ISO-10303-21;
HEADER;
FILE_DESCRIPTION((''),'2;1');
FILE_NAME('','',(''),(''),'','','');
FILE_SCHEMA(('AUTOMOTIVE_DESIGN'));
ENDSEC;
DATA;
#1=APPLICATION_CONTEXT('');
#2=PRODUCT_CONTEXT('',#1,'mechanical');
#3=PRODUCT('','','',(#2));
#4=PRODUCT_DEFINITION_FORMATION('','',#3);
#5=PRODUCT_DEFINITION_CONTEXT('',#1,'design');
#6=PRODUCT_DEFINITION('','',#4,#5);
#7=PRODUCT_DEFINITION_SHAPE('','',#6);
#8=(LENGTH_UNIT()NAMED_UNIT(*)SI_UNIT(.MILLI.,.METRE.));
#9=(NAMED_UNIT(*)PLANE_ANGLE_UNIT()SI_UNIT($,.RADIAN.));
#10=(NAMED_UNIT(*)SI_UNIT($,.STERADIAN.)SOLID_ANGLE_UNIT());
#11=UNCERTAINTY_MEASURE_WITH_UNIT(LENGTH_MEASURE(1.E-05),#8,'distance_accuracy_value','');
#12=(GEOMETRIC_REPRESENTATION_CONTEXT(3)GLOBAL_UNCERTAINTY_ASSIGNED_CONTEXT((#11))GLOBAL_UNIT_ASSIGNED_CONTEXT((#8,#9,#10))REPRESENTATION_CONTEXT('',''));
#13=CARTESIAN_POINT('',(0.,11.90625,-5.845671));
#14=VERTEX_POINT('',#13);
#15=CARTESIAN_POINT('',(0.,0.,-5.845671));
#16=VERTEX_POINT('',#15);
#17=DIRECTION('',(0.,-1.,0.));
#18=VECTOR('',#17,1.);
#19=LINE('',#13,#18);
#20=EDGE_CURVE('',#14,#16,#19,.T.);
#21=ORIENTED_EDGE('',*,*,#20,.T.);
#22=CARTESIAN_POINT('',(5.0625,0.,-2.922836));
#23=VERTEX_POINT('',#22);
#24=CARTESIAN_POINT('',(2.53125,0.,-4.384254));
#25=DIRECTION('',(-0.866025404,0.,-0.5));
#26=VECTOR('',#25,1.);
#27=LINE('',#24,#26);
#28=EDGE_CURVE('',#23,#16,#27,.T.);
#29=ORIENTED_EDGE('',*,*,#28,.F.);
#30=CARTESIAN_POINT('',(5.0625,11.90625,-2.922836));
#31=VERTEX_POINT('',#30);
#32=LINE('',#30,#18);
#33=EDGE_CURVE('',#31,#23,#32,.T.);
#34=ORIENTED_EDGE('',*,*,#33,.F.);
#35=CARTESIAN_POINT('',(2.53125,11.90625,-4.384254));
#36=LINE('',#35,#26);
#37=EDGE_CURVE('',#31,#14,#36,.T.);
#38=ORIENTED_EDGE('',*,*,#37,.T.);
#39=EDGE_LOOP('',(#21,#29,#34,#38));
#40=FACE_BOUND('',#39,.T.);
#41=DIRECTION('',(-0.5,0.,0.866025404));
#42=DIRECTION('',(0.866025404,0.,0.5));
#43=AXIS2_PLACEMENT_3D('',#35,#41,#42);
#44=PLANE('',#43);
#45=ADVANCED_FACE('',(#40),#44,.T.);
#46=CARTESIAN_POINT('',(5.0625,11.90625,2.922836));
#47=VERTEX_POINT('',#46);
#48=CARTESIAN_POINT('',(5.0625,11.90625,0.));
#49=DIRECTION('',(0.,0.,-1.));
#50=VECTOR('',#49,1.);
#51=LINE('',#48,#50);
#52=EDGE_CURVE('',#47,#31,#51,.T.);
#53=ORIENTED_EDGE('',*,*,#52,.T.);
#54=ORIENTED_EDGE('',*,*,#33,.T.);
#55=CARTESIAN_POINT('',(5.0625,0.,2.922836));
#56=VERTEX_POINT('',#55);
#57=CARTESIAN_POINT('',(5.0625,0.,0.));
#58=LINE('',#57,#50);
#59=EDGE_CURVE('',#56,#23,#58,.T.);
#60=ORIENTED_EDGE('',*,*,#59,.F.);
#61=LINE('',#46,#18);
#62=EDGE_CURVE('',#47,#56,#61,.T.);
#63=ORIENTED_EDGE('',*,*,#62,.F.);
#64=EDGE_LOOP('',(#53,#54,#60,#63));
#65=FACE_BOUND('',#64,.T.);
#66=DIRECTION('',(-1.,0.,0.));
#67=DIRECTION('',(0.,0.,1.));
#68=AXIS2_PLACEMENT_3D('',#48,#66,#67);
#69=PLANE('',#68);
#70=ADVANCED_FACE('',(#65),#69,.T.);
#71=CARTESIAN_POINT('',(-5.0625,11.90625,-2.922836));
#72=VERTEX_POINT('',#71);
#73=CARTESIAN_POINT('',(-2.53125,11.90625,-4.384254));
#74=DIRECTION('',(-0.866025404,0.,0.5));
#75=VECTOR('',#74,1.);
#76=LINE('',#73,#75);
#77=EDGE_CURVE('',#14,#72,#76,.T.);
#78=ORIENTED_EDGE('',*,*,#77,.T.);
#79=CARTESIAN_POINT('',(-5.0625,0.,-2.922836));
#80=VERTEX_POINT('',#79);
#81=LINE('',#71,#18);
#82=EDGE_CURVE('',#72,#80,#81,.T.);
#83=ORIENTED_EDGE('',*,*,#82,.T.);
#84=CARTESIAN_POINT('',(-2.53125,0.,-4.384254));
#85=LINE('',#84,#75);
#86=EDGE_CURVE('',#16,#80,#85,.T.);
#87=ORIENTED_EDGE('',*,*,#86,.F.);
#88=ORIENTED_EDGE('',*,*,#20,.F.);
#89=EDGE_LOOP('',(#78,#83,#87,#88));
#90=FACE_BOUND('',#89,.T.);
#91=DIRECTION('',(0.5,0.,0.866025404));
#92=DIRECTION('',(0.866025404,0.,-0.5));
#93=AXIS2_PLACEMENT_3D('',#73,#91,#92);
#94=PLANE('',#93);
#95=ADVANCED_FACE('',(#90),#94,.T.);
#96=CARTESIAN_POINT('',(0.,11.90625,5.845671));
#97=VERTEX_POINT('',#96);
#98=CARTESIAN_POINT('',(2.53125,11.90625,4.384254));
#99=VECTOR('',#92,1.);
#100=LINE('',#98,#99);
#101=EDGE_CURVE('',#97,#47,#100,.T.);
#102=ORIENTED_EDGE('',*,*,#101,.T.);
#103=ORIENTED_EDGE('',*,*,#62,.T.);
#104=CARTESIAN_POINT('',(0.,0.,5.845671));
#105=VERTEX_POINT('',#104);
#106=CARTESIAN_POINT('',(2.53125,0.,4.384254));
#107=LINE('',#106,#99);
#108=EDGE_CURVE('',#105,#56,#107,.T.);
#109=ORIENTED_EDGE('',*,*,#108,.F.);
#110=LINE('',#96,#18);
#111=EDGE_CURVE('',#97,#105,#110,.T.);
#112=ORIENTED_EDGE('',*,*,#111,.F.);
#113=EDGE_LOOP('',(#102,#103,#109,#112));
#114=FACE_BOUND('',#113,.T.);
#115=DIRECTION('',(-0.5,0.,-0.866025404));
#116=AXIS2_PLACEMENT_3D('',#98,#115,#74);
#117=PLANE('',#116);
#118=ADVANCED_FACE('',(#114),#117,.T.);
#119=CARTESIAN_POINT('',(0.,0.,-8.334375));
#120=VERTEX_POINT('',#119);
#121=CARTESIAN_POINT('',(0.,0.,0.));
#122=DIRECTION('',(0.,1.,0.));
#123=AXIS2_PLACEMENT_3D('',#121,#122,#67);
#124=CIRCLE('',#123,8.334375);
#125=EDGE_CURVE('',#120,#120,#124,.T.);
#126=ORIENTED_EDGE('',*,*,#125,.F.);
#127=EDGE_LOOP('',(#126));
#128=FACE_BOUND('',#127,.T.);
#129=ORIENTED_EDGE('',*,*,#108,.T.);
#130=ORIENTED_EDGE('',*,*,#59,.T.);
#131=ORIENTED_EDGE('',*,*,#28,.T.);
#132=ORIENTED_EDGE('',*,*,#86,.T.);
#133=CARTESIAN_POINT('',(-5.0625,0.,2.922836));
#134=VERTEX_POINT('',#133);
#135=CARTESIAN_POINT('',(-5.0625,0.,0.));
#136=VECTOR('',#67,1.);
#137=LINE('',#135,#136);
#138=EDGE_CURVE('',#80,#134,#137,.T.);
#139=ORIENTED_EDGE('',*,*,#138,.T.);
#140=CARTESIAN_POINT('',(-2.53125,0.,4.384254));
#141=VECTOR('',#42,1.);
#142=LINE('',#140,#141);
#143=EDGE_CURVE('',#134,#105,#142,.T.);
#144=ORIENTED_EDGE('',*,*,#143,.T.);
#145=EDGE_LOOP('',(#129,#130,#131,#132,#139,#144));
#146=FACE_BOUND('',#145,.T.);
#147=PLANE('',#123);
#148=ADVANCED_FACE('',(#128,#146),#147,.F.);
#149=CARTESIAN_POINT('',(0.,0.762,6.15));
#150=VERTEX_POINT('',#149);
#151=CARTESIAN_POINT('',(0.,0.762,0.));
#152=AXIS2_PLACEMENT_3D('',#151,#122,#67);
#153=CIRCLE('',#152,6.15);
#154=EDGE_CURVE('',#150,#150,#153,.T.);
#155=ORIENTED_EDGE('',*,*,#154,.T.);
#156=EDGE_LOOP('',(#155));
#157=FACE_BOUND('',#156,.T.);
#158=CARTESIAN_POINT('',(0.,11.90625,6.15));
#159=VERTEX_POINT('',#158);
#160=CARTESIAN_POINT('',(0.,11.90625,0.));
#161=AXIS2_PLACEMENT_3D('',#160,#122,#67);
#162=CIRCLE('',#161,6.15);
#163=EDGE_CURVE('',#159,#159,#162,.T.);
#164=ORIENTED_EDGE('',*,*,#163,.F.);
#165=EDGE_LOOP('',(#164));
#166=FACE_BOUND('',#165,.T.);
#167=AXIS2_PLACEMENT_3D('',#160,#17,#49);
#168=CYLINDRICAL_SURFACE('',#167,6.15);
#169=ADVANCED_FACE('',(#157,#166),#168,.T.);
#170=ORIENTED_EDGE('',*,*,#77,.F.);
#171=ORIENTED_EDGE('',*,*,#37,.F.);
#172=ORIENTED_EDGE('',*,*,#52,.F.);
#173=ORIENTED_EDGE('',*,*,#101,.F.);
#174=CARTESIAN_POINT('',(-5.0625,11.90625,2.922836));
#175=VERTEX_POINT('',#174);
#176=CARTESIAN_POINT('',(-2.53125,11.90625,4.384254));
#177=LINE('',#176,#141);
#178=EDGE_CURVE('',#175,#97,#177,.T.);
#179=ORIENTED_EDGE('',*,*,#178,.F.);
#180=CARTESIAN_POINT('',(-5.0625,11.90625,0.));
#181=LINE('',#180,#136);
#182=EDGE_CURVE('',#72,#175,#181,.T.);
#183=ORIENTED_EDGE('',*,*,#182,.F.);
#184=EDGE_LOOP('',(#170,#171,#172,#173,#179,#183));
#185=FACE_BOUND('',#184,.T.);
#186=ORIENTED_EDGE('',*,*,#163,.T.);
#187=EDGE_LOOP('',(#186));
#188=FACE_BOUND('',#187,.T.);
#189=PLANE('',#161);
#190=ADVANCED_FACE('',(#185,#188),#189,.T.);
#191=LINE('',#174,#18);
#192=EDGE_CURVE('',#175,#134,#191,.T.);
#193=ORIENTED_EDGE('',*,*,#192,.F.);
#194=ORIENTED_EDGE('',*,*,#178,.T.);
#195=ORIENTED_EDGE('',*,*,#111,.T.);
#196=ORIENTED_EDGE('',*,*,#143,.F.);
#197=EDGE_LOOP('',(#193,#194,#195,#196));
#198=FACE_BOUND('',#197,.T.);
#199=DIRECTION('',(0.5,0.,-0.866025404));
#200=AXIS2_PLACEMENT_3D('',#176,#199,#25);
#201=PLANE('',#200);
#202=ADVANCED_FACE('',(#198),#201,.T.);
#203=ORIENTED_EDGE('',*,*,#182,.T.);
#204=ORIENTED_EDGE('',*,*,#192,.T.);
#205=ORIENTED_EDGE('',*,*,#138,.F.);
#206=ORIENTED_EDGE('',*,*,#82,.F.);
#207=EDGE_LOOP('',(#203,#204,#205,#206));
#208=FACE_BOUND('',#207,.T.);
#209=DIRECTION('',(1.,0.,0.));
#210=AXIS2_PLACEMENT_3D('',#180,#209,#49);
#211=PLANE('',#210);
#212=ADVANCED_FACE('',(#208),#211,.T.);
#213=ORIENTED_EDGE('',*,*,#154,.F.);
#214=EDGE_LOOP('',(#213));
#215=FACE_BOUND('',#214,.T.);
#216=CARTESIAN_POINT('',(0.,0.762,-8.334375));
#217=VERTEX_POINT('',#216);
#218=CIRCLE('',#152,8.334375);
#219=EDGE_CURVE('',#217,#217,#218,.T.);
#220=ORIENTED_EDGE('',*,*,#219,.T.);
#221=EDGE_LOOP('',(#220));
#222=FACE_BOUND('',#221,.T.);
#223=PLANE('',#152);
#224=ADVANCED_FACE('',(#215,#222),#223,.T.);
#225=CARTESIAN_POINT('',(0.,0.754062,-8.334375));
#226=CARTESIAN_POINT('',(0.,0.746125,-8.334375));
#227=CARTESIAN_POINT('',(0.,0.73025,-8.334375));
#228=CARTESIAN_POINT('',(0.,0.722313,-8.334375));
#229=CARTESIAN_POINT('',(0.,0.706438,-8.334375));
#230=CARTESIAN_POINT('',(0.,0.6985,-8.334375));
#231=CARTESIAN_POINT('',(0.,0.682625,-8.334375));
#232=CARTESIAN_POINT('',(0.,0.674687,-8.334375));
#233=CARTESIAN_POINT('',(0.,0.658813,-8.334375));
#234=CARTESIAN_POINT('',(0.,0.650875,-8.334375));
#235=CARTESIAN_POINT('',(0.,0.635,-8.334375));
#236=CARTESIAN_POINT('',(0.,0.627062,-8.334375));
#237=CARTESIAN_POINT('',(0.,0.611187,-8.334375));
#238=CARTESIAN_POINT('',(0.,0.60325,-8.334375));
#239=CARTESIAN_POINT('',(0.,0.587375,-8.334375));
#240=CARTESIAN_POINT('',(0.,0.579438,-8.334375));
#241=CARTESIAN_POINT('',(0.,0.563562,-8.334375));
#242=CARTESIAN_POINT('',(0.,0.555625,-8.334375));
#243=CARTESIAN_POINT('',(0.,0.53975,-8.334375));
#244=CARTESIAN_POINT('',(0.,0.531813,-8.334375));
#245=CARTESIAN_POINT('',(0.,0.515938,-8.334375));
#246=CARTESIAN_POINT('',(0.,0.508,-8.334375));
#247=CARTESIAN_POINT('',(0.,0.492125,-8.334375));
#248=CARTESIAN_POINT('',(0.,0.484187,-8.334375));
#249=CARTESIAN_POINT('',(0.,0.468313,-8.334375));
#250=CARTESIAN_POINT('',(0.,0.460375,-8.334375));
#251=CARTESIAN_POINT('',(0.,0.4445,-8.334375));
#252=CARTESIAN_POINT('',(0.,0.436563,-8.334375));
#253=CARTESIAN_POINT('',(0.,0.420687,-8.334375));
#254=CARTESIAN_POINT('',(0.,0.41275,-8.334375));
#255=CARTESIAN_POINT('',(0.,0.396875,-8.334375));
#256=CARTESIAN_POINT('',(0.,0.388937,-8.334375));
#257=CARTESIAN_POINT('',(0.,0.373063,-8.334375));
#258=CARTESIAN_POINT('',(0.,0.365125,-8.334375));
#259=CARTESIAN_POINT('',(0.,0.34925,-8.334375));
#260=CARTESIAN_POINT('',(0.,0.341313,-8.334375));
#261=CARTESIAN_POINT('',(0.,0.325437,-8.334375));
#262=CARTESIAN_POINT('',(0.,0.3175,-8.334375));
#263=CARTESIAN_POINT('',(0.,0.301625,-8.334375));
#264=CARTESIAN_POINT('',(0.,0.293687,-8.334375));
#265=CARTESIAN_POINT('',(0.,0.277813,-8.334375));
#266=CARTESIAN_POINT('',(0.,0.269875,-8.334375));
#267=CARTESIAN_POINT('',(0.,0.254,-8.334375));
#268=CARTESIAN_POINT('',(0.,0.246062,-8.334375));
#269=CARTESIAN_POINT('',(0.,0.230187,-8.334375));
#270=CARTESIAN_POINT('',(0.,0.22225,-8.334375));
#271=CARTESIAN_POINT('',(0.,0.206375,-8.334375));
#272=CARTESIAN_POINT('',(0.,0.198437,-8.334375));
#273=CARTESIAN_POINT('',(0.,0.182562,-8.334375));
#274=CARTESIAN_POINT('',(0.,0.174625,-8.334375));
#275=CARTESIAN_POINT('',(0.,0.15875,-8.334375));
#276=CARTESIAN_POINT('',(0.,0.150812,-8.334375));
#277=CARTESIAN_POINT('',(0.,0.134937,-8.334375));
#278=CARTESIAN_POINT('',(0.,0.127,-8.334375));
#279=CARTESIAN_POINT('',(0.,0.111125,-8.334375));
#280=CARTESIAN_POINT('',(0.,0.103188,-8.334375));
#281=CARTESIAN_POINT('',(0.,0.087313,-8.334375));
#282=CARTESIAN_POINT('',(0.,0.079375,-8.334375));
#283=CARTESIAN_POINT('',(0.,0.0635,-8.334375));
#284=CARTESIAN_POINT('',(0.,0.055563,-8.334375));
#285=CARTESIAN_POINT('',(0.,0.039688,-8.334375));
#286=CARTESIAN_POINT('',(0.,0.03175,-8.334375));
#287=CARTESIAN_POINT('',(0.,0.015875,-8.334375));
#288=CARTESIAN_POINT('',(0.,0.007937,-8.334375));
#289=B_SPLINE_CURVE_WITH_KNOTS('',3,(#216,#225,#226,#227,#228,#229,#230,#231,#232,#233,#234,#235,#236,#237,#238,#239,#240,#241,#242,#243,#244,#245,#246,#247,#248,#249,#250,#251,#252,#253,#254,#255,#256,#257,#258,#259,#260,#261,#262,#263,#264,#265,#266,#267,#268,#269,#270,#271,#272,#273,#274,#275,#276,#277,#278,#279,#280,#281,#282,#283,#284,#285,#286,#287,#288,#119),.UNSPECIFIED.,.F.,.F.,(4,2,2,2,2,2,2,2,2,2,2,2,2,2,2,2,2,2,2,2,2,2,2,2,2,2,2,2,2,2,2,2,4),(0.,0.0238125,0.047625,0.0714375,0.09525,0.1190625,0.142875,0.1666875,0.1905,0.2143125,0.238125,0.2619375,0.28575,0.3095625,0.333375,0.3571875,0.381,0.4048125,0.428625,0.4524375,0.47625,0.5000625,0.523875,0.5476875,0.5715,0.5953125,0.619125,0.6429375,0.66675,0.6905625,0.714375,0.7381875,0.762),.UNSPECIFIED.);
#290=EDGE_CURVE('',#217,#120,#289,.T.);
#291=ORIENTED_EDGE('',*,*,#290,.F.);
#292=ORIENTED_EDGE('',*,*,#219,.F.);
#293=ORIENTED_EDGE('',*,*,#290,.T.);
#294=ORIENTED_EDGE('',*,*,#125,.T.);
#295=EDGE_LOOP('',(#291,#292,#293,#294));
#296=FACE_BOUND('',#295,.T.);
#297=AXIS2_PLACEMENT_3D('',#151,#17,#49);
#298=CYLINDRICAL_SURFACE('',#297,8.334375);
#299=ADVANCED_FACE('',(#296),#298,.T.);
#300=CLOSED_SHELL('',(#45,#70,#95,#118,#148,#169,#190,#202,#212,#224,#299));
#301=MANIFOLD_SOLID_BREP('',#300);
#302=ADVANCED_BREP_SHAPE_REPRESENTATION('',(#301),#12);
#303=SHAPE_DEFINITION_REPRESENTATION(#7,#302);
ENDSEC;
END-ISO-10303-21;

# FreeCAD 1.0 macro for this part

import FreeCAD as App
import Part
import Sketcher

V = App.Vector
Q = App.Units.Quantity

doc = App.newDocument("Part")
body = doc.addObject("PartDesign::Body", "Body")

sketch1 = body.newObject("Sketcher::SketchObject", "Sketch")
sketch1.AttachmentSupport = (doc.getObject("XZ_Plane"), [""])
sketch1.MapMode = "FlatFace"
sketch1.addGeometry(Part.Circle(V(0, 0, 0), V(0, 0, 1), 6), False)
sketch1.addGeometry(Part.LineSegment(V(0, -6, 0), V(5, -3, 0)), False)
sketch1.addGeometry(Part.LineSegment(V(5, -3, 0), V(5, 3, 0)), False)
sketch1.addGeometry(Part.LineSegment(V(5, 3, 0), V(0, 6, 0)), False)
sketch1.addGeometry(Part.LineSegment(V(0, 6, 0), V(-5, 3, 0)), False)
sketch1.addGeometry(Part.LineSegment(V(-5, 3, 0), V(-5, -3, 0)), False)
sketch1.addGeometry(Part.LineSegment(V(-5, -3, 0), V(0, -6, 0)), False)
sketch1.addConstraint(Sketcher.Constraint("Coincident", 1, 2, 2, 1))
sketch1.addConstraint(Sketcher.Constraint("Coincident", 2, 2, 3, 1))
sketch1.addConstraint(Sketcher.Constraint("Coincident", 3, 2, 4, 1))
sketch1.addConstraint(Sketcher.Constraint("Coincident", 4, 2, 5, 1))
sketch1.addConstraint(Sketcher.Constraint("Coincident", 5, 2, 6, 1))
sketch1.addConstraint(Sketcher.Constraint("Coincident", 6, 2, 1, 1))
sketch1.addConstraint(Sketcher.Constraint("Vertical", 2))
sketch1.addConstraint(Sketcher.Constraint("Vertical", 5))
sketch1.addConstraint(Sketcher.Constraint("Coincident", 0, 3, -1, 1))
sketch1.addConstraint(Sketcher.Constraint("Symmetric", 1, 2, 4, 2, -1, 1))
sketch1.addConstraint(Sketcher.Constraint("Symmetric", 3, 2, 6, 2, -1, 1))
sketch1.addConstraint(Sketcher.Constraint("PointOnObject", 3, 2, -2))
sketch1.addConstraint(Sketcher.Constraint("Parallel", 3, 6))
sketch1.addConstraint(Sketcher.Constraint("Horizontal", 2, 2, 4, 2))
sketch1.addConstraint(Sketcher.Constraint("Angle", 1, Q("30 deg")))
sketch1.addConstraint(Sketcher.Constraint("Diameter", 0, 12.3))
sketch1.addConstraint(Sketcher.Constraint("DistanceY", 2, 1, 2, 2, 5.845671))
sketch1.addConstraint(Sketcher.Constraint("DistanceX", -1, 1, 1, 2, 5.0625))
pad1 = body.newObject("PartDesign::Pad", "Pad")
pad1.Profile = sketch1
pad1.Length = Q("0.46875 in")
pad1.Reversed = True

sketch2 = body.newObject("Sketcher::SketchObject", "Sketch001")
sketch2.AttachmentSupport = (doc.getObject("XZ_Plane"), [""])
sketch2.MapMode = "FlatFace"
sketch2.addGeometry(Part.Circle(V(0, 0, 0), V(0, 0, 1), 8), False)
sketch2.addGeometry(Part.Circle(V(0, 0, 0), V(0, 0, 1), 6), False)
sketch2.addConstraint(Sketcher.Constraint("Coincident", 0, 3, -1, 1))
sketch2.addConstraint(Sketcher.Constraint("Coincident", 1, 3, -1, 1))
sketch2.addConstraint(Sketcher.Constraint("Diameter", 0, Q("0.65625 in")))
sketch2.addConstraint(Sketcher.Constraint("Diameter", 1, 12.3))
pad2 = body.newObject("PartDesign::Pad", "Pad001")
pad2.Profile = sketch2
pad2.Length = Q("0.03 in")
pad2.Reversed = True

doc.recompute()
